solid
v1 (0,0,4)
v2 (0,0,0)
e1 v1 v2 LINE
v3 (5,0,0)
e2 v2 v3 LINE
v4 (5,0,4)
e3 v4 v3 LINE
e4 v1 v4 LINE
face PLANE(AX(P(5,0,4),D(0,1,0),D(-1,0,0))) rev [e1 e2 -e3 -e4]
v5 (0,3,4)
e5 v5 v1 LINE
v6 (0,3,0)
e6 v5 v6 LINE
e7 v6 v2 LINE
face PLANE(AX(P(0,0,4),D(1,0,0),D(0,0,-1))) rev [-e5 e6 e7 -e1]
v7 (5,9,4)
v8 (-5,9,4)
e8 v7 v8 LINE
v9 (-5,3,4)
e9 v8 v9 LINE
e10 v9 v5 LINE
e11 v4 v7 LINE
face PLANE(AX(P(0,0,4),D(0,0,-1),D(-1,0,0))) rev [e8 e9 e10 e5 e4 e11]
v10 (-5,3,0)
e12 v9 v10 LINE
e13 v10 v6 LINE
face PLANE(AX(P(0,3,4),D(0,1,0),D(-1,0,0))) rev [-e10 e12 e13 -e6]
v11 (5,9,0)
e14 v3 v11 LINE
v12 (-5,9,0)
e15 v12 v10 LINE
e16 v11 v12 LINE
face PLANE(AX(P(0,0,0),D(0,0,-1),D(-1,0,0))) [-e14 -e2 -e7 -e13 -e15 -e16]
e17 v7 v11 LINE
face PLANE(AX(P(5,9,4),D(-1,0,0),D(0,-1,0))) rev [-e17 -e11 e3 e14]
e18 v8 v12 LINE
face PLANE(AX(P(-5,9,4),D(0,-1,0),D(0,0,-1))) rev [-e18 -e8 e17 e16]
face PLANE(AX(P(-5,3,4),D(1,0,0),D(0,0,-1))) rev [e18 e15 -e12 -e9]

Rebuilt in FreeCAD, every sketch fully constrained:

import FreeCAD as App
import Part
import Sketcher
from FreeCAD import Vector
Q = App.Units.Quantity

doc = App.newDocument("Part")
body = doc.addObject("PartDesign::Body", "Body")

sketch1 = body.newObject("Sketcher::SketchObject", "Sketch")
sketch1.AttachmentSupport = (doc.getObject("XY_Plane"), [""])
sketch1.MapMode = "FlatFace"
sketch1.addGeometry([
    Part.LineSegment(Vector(0, 3, 0), Vector(0, 0, 0)),
    Part.LineSegment(Vector(0, 0, 0), Vector(5, 0, 0)),
    Part.LineSegment(Vector(5, 0, 0), Vector(5, 9, 0)),
    Part.LineSegment(Vector(5, 9, 0), Vector(-5, 9, 0)),
    Part.LineSegment(Vector(-5, 9, 0), Vector(-5, 3, 0)),
    Part.LineSegment(Vector(-5, 3, 0), Vector(0, 3, 0)),
], False)
sketch1.addConstraint([
    Sketcher.Constraint("Coincident", 0, 2, 1, 1),
    Sketcher.Constraint("Coincident", 1, 2, 2, 1),
    Sketcher.Constraint("Coincident", 2, 2, 3, 1),
    Sketcher.Constraint("Coincident", 3, 2, 4, 1),
    Sketcher.Constraint("Coincident", 4, 2, 5, 1),
    Sketcher.Constraint("Coincident", 5, 2, 0, 1),
    Sketcher.Constraint("Vertical", 0),
    Sketcher.Constraint("Horizontal", 1),
    Sketcher.Constraint("Vertical", 2),
    Sketcher.Constraint("Horizontal", 3),
    Sketcher.Constraint("Vertical", 4),
    Sketcher.Constraint("Horizontal", 5),
    Sketcher.Constraint("Coincident", 0, 2, -1, 1),
    Sketcher.Constraint("Equal", 1, 5),
    Sketcher.Constraint("DistanceX", 1, 1, 1, 2, Q("5 mm")),
    Sketcher.Constraint("DistanceY", 0, 2, 0, 1, Q("3 mm")),
    Sketcher.Constraint("DistanceY", 2, 1, 2, 2, Q("9 mm")),
])
pad1 = body.newObject("PartDesign::Pad", "Pad")
pad1.Profile = sketch1
pad1.Length = 4

doc.recompute()
